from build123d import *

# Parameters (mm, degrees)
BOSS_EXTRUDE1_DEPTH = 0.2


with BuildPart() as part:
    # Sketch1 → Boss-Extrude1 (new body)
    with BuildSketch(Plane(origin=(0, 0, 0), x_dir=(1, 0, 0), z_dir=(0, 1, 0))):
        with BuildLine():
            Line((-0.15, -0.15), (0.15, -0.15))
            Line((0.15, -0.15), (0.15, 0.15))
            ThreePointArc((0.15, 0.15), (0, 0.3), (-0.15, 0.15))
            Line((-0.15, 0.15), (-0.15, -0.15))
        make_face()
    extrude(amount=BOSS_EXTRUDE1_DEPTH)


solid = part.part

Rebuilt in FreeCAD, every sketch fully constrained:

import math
import FreeCAD as App
import Part
import Sketcher
from FreeCAD import Vector
Q = App.Units.Quantity

doc = App.newDocument("Part")
body = doc.addObject("PartDesign::Body", "Body")

sketch1 = doc.addObject("Sketcher::SketchObject", "Sketch")
body.addObject(sketch1)
sketch1.AttachmentSupport = (doc.XZ_Plane, [""])
sketch1.MapMode = "FlatFace"
sketch1.addGeometry(Part.LineSegment(Vector(-0.15, 0.15, 0), Vector(0.15, 0.15, 0)), False)
sketch1.addGeometry(Part.LineSegment(Vector(0.15, 0.15, 0), Vector(0.15, -0.15, 0)), False)
sketch1.addGeometry(Part.ArcOfCircle(Part.Circle(Vector(0, -0.15, 0), Vector(0, 0, 1), 0.15), math.radians(180), math.radians(360)), False)
sketch1.addGeometry(Part.LineSegment(Vector(-0.15, -0.15, 0), Vector(-0.15, 0.15, 0)), False)
sketch1.addConstraint(Sketcher.Constraint("Coincident", 0, 2, 1, 1))
sketch1.addConstraint(Sketcher.Constraint("Tangent", 1, 2, 2, 2))
sketch1.addConstraint(Sketcher.Constraint("Tangent", 2, 1, 3, 1))
sketch1.addConstraint(Sketcher.Constraint("Coincident", 3, 2, 0, 1))
sketch1.addConstraint(Sketcher.Constraint("Horizontal", 0))
sketch1.addConstraint(Sketcher.Constraint("Vertical", 1))
sketch1.addConstraint(Sketcher.Constraint("Vertical", 3))
sketch1.addConstraint(Sketcher.Constraint("Symmetric", 0, 2, 2, 1, -1, 1))
sketch1.addConstraint(Sketcher.Constraint("Equal", 0, 1))
sketch1.addConstraint(Sketcher.Constraint("Radius", 2, Q("0.15 mm")))
pad1 = doc.addObject("PartDesign::Pad", "Pad")
body.addObject(pad1)
pad1.Profile = sketch1
pad1.Length = 0.2
pad1.Reversed = True

doc.recompute()
